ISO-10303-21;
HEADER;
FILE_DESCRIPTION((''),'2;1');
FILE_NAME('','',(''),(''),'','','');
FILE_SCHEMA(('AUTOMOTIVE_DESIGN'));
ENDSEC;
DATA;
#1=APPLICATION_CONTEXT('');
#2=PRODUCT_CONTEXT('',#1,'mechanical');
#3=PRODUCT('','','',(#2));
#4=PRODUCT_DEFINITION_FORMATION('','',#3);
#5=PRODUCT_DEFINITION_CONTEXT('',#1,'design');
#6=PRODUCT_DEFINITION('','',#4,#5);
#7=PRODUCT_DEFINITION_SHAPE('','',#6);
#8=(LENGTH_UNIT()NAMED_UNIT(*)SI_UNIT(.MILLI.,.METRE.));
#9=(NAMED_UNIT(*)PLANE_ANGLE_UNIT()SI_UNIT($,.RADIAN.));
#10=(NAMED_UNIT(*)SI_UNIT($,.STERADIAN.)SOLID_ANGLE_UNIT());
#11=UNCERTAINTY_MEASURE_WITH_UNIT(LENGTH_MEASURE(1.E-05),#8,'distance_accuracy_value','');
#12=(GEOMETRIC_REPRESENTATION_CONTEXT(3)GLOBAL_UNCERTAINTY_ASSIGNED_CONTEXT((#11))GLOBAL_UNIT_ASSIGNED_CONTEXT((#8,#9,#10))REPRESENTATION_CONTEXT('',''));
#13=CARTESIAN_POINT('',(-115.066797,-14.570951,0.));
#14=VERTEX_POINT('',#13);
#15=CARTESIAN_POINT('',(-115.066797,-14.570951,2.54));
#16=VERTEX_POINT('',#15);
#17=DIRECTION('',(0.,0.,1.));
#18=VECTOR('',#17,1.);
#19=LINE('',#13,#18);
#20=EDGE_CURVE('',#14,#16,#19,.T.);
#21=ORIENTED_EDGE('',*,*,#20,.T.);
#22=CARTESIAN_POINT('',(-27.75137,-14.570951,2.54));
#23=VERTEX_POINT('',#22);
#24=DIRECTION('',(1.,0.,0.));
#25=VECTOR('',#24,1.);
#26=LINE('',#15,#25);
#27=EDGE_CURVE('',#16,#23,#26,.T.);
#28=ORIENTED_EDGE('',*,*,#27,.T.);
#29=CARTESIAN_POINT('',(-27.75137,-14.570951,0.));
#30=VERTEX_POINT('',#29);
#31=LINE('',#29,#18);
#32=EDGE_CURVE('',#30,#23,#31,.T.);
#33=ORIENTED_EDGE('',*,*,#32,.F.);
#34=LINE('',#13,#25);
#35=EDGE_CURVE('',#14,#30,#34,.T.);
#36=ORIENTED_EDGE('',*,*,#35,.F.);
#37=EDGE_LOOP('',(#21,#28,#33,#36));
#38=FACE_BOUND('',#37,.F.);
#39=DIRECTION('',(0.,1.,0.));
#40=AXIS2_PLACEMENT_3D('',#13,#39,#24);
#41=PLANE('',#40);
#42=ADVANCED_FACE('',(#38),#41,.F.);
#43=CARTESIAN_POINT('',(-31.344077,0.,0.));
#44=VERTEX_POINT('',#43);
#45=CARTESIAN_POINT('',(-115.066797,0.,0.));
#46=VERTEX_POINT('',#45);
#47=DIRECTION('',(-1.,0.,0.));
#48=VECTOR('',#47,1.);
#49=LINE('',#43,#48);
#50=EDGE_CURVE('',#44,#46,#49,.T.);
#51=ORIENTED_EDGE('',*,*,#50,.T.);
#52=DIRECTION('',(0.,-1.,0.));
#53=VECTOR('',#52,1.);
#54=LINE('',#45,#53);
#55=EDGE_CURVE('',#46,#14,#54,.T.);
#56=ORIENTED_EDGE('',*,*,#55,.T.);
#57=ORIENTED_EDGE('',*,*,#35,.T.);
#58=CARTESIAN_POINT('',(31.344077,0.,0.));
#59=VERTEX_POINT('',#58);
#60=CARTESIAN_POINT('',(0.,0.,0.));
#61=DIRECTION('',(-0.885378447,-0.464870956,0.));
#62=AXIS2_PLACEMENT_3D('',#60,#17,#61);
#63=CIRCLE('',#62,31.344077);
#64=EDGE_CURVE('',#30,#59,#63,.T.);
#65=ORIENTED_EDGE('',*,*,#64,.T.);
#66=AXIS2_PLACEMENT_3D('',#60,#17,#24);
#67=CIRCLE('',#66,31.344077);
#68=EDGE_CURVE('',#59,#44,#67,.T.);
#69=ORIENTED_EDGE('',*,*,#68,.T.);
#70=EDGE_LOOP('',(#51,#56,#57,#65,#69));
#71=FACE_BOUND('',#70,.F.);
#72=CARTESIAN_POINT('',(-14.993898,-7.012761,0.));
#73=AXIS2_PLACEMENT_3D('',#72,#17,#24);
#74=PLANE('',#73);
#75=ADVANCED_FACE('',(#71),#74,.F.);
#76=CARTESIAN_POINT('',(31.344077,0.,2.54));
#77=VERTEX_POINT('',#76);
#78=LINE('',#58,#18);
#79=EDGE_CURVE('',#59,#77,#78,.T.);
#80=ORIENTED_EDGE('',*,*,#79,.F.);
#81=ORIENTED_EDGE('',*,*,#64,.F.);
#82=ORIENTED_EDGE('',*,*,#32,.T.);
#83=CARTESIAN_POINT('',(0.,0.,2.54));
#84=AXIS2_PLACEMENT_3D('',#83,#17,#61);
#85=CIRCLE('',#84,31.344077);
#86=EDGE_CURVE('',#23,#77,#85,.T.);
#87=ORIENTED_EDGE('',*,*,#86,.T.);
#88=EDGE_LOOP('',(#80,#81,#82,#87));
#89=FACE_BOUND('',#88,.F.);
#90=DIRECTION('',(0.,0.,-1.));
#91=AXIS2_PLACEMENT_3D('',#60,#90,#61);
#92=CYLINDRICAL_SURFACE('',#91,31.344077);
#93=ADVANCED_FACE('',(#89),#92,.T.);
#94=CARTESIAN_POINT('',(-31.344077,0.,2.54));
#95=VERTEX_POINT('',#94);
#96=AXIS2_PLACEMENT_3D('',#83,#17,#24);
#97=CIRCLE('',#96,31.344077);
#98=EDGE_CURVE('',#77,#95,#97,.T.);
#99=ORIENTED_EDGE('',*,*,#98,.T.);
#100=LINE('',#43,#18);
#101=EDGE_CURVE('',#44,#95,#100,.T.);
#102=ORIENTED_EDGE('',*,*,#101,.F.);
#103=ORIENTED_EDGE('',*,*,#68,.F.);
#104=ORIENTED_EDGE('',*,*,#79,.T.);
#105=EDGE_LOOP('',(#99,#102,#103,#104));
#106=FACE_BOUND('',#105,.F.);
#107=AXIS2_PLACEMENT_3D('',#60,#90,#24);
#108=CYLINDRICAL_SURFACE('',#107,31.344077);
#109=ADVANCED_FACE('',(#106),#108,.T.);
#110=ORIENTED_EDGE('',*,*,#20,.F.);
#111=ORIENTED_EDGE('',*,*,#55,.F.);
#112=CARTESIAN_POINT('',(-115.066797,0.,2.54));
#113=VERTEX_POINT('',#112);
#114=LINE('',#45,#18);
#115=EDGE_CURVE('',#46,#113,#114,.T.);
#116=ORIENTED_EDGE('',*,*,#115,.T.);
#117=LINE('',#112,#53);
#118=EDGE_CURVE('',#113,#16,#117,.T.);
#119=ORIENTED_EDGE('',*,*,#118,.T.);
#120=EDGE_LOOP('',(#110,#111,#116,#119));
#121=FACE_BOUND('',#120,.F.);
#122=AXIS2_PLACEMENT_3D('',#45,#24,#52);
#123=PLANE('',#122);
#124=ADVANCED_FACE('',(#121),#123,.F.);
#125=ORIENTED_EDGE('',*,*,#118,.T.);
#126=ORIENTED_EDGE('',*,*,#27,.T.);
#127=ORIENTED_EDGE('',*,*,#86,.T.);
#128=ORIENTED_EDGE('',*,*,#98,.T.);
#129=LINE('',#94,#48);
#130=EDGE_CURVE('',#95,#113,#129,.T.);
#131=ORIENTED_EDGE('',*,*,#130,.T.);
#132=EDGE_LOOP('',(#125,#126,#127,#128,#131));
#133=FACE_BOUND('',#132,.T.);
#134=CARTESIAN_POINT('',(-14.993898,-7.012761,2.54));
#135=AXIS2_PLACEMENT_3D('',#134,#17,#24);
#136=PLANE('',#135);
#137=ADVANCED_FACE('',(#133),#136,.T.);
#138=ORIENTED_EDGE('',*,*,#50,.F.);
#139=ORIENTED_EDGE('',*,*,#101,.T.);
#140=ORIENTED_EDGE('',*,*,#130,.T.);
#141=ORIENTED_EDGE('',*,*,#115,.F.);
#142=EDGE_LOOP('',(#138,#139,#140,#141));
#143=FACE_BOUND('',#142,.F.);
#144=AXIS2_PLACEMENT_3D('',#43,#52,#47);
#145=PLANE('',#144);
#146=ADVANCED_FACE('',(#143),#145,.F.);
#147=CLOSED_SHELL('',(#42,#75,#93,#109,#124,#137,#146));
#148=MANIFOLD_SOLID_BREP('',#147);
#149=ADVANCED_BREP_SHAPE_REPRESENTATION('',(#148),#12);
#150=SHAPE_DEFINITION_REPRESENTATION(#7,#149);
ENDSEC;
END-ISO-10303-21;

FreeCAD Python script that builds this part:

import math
import FreeCAD as App
import Part
import Sketcher

V = App.Vector
Q = App.Units.Quantity

doc = App.newDocument("Part")
params = doc.addObject("Spreadsheet::Sheet", "Params")
for row, (alias, value) in enumerate([
    ("pad1_length", "0.1 in"),
    ("pad2_length", "0.1 in"),
], start=1):
    params.set(f"A{row}", alias)
    params.set(f"B{row}", "=" + value)
    params.setAlias(f"B{row}", alias)

body = doc.addObject("PartDesign::Body", "Body")

# Sketch on XY plane
sketch1 = body.newObject("Sketcher::SketchObject", "Sketch")
sketch1.AttachmentSupport = (doc.getObject("XY_Plane"), [""])
sketch1.MapMode = "FlatFace"
sketch1.addGeometry(Part.ArcOfCircle(Part.Circle(V(-0.000001, 0, 0), V(0, 0, 1), 31.344076), math.radians(-180), math.radians(-152.298128)), False)
sketch1.addGeometry(Part.LineSegment(V(-31.344077, 0, 0), V(-115.066797, 0, 0)), False)
sketch1.addGeometry(Part.LineSegment(V(-115.066797, 0, 0), V(-115.066797, -14.570951, 0)), False)
sketch1.addGeometry(Part.LineSegment(V(-115.066797, -14.570951, 0), V(-27.75137, -14.570951, 0)), False)
sketch1.addConstraint(Sketcher.Constraint("Coincident", 0, 1, 1, 1))
sketch1.addConstraint(Sketcher.Constraint("Coincident", 1, 2, 2, 1))
sketch1.addConstraint(Sketcher.Constraint("Coincident", 2, 2, 3, 1))
sketch1.addConstraint(Sketcher.Constraint("Coincident", 3, 2, 0, 2))
sketch1.addConstraint(Sketcher.Constraint("Horizontal", 1))
sketch1.addConstraint(Sketcher.Constraint("Vertical", 2))
sketch1.addConstraint(Sketcher.Constraint("Horizontal", 3))
sketch1.addConstraint(Sketcher.Constraint("Coincident", 0, 3, -1, 1))
sketch1.addConstraint(Sketcher.Constraint("PointOnObject", 0, 1, -1))
sketch1.addConstraint(Sketcher.Constraint("Radius", 0, Q("31.344076 mm")))
sketch1.addConstraint(Sketcher.Constraint("DistanceX", 1, 2, 1, 1, Q("83.72272 mm")))
sketch1.addConstraint(Sketcher.Constraint("DistanceY", 2, 2, 2, 1, Q("14.570951 mm")))
pad1 = body.newObject("PartDesign::Pad", "Pad")
pad1.Profile = sketch1
pad1.setExpression("Length", "Params.pad1_length")

# Sketch on XY plane
sketch2 = body.newObject("Sketcher::SketchObject", "Sketch001")
sketch2.AttachmentSupport = (doc.getObject("XY_Plane"), [""])
sketch2.MapMode = "FlatFace"
sketch2.addGeometry(Part.ArcOfCircle(Part.Circle(V(-0.000001, 0, 0), V(0, 0, 1), 31.344076), math.radians(-180), math.radians(-152.298128)), False)
sketch2.addGeometry(Part.ArcOfCircle(Part.Circle(V(0, 0, 0), V(0, 0, 1), 31.344077), math.radians(-152.298129), math.radians(0)), False)
sketch2.addGeometry(Part.ArcOfCircle(Part.Circle(V(0, 0, 0), V(0, 0, 1), 31.344077), math.radians(0), math.radians(180)), False)
sketch2.addConstraint(Sketcher.Constraint("Tangent", 0, 2, 1, 1))
sketch2.addConstraint(Sketcher.Constraint("Tangent", 1, 2, 2, 1))
sketch2.addConstraint(Sketcher.Constraint("Tangent", 2, 2, 0, 1))
sketch2.addConstraint(Sketcher.Constraint("Coincident", 0, 3, -1, 1))
sketch2.addConstraint(Sketcher.Constraint("PointOnObject", 1, 2, -1))
sketch2.addConstraint(Sketcher.Constraint("PointOnObject", 2, 2, -1))
sketch2.addConstraint(Sketcher.Constraint("Radius", 0, Q("31.344076 mm")))
sketch2.addConstraint(Sketcher.Constraint("DistanceX", 0, 2, -1, 1, Q("27.75137 mm")))
pad2 = body.newObject("PartDesign::Pad", "Pad001")
pad2.Profile = sketch2
pad2.setExpression("Length", "Params.pad2_length")

doc.recompute()
